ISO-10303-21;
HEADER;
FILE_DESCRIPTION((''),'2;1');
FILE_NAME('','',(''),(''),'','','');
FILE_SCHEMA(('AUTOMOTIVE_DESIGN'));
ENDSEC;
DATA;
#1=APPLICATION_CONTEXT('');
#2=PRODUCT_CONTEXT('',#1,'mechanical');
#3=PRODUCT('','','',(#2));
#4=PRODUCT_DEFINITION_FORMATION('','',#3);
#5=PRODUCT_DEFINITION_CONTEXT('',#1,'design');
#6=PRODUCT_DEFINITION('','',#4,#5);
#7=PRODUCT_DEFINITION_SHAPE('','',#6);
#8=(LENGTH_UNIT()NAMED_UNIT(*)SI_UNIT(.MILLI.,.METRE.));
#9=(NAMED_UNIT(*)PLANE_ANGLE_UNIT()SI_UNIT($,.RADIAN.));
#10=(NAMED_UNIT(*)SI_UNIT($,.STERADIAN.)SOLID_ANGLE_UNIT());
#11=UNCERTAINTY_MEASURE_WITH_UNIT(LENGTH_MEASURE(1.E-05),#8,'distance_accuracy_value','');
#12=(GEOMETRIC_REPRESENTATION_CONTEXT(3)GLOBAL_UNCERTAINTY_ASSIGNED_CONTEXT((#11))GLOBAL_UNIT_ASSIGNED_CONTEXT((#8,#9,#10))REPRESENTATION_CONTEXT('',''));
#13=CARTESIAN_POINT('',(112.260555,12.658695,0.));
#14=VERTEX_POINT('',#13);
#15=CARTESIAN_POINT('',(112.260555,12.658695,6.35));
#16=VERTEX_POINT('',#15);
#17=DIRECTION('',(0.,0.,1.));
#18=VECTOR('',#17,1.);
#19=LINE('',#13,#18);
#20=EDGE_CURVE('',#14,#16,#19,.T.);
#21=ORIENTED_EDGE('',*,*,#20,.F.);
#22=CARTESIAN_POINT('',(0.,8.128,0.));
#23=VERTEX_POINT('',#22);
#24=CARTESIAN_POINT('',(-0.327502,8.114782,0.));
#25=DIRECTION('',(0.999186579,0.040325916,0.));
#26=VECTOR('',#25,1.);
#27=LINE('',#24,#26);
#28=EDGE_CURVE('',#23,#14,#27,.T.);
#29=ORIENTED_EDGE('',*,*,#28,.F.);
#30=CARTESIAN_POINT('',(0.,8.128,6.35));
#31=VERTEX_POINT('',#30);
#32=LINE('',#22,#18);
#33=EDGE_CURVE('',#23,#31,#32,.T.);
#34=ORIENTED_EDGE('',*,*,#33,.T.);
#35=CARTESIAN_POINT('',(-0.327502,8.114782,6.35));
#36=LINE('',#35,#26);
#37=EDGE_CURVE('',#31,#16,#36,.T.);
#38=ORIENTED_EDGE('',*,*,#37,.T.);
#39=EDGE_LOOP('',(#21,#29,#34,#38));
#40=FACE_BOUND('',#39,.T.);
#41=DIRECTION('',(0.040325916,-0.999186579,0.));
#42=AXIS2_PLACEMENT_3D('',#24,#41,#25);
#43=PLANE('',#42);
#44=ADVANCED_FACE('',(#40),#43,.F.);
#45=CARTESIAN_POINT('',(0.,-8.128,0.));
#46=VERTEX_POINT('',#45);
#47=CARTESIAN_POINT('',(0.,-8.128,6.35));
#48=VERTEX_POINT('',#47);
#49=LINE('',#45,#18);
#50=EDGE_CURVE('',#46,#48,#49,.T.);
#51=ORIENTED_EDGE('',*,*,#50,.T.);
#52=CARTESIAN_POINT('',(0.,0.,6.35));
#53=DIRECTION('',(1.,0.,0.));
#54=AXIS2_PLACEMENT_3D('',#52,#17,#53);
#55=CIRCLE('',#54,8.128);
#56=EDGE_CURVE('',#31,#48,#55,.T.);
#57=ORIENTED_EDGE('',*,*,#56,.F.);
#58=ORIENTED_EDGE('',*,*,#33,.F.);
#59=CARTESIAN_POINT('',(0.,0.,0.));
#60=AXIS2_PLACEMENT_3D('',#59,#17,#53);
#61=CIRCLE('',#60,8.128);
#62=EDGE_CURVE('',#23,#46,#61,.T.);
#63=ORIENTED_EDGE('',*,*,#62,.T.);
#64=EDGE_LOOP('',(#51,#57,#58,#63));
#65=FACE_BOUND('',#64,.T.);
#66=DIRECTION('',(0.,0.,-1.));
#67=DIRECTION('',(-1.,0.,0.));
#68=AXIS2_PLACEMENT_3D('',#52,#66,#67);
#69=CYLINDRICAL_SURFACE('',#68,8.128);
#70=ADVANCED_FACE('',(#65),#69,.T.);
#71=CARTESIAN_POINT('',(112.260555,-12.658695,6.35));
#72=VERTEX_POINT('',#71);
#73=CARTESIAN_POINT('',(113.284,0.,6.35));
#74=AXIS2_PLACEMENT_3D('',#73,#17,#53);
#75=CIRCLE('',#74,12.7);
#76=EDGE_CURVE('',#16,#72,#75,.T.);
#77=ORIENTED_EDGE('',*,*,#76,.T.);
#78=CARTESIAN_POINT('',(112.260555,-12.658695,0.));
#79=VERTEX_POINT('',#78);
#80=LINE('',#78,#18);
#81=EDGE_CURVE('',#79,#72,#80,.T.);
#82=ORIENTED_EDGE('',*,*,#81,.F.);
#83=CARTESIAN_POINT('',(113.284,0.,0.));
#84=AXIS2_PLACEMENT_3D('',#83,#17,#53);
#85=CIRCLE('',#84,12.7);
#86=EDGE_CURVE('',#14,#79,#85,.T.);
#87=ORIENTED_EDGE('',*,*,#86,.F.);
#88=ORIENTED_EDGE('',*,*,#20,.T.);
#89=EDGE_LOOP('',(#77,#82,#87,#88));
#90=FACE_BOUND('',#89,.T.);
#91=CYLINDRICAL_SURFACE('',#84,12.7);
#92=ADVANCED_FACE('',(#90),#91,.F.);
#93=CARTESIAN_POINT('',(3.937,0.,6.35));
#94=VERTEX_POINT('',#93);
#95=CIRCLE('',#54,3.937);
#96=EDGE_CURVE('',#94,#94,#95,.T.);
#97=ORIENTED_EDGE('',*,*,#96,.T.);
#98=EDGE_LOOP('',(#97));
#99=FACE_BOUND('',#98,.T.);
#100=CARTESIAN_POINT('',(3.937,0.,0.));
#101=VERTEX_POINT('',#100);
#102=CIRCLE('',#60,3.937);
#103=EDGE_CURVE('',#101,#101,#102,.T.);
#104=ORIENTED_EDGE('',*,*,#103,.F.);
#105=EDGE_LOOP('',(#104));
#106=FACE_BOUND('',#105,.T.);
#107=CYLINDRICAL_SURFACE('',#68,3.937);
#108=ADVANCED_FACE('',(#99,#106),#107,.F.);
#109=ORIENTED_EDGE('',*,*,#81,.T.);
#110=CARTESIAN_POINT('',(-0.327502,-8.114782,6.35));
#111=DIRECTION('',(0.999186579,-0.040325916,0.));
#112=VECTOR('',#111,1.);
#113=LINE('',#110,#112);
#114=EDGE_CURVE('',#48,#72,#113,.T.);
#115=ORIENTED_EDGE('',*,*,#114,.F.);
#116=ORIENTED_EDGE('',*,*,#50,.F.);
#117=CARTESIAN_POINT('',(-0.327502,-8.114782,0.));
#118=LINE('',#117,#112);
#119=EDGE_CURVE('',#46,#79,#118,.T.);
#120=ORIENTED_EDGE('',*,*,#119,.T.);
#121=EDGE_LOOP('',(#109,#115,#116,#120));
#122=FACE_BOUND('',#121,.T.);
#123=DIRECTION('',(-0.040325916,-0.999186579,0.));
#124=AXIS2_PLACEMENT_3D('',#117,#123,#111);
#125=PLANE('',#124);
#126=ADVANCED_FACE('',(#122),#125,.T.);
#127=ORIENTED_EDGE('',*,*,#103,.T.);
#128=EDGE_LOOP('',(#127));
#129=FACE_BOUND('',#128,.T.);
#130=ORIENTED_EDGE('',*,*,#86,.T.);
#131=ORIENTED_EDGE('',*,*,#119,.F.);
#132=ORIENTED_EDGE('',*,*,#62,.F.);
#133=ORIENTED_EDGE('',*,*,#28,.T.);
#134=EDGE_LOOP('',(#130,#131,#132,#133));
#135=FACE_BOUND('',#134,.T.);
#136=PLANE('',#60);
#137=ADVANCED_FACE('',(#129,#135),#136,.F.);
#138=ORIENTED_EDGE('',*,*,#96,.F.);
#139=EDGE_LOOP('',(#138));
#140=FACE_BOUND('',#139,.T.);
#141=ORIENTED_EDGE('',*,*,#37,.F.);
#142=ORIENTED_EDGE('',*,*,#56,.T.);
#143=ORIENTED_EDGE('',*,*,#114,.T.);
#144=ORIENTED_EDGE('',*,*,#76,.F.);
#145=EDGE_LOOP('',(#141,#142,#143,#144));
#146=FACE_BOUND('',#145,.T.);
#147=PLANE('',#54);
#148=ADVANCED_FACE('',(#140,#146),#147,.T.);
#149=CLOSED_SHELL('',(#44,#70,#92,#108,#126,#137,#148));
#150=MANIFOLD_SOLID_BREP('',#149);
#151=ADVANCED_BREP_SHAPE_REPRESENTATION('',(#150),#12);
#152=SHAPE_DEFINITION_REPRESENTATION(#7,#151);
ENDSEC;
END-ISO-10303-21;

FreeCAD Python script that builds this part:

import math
import FreeCAD as App
import Part
import Sketcher
from FreeCAD import Vector
Q = App.Units.Quantity

doc = App.newDocument("Part")
params = doc.addObject("Spreadsheet::Sheet", "Params")
for row, (alias, value) in enumerate([
    ("sketch1_diameter", "0.64 in"),
    ("sketch1_diameter2", "0.31 in"),
    ("pad1_length", "0.25 in"),
    ("sketch2_radius", "0.5 in"),
    ("sketch2_radius2", "0.32 in"),
    ("pad2_length", "0.25 in"),
], start=1):
    params.set(f"A{row}", alias)
    params.set(f"B{row}", "=" + value)
    params.setAlias(f"B{row}", alias)

body = doc.addObject("PartDesign::Body", "Body")

# Sketch on XY plane
sketch1 = doc.addObject("Sketcher::SketchObject", "Sketch")
body.addObject(sketch1)
sketch1.AttachmentSupport = (doc.XY_Plane, [""])
sketch1.MapMode = "FlatFace"
sketch1.addGeometry(Part.Circle(Vector(0, 0, 0), Vector(0, 0, 1), 8.1), False)
sketch1.addGeometry(Part.Circle(Vector(0, 0, 0), Vector(0, 0, 1), 3.9), False)
sketch1.addConstraint(Sketcher.Constraint("Coincident", 0, 3, -1, 1))
sketch1.addConstraint(Sketcher.Constraint("Coincident", 1, 3, -1, 1))
sketch1.addConstraint(Sketcher.Constraint("Diameter", 0, Q("0.64 in")))
sketch1.addConstraint(Sketcher.Constraint("Diameter", 1, Q("0.31 in")))
sketch1.setExpression("Constraints[2]", "Params.sketch1_diameter")
sketch1.setExpression("Constraints[3]", "Params.sketch1_diameter2")
pad1 = doc.addObject("PartDesign::Pad", "Pad")
body.addObject(pad1)
pad1.Profile = sketch1
pad1.setExpression("Length", "Params.pad1_length")

# Sketch on XY plane
sketch2 = doc.addObject("Sketcher::SketchObject", "Sketch001")
body.addObject(sketch2)
sketch2.AttachmentSupport = (doc.XY_Plane, [""])
sketch2.MapMode = "FlatFace"
sketch2.AttachmentOffset = App.Placement(Vector(0, 0, 0.25 * 25.4), App.Rotation())
sketch2.addGeometry(Part.LineSegment(Vector(112, 13, 0), Vector(0, 8, 0)), False)
sketch2.addGeometry(Part.ArcOfCircle(Part.Circle(Vector(0, 0, 0), Vector(0, 0, 1), 8), math.radians(0), math.radians(90)), False)
sketch2.addGeometry(Part.ArcOfCircle(Part.Circle(Vector(0, 0, 0), Vector(0, 0, 1), 8), math.radians(-90), math.radians(0)), False)
sketch2.addGeometry(Part.LineSegment(Vector(0, -8, 0), Vector(112, -13, 0)), False)
sketch2.addGeometry(Part.ArcOfCircle(Part.Circle(Vector(113, 0, 0), Vector(0, 0, 1), 13), math.radians(95), math.radians(265)), False)
sketch2.addConstraint(Sketcher.Constraint("Coincident", 0, 2, 1, 2))
sketch2.addConstraint(Sketcher.Constraint("Tangent", 1, 1, 2, 2))
sketch2.addConstraint(Sketcher.Constraint("Coincident", 2, 1, 3, 1))
sketch2.addConstraint(Sketcher.Constraint("Coincident", 3, 2, 4, 2))
sketch2.addConstraint(Sketcher.Constraint("Coincident", 4, 1, 0, 1))
sketch2.addConstraint(Sketcher.Constraint("Coincident", 1, 3, -1, 1))
sketch2.addConstraint(Sketcher.Constraint("Equal", 1, 2))
sketch2.addConstraint(Sketcher.Constraint("Symmetric", 3, 2, 4, 1, -1))
sketch2.addConstraint(Sketcher.Constraint("PointOnObject", 0, 2, -2))
sketch2.addConstraint(Sketcher.Constraint("PointOnObject", 1, 1, -1))
sketch2.addConstraint(Sketcher.Constraint("PointOnObject", 2, 1, -2))
sketch2.addConstraint(Sketcher.Constraint("Radius", 4, Q("0.5 in")))
sketch2.addConstraint(Sketcher.Constraint("Radius", 1, Q("0.32 in")))
sketch2.addConstraint(Sketcher.Constraint("DistanceX", -1, 1, 4, 3, Q("4.46 in")))
sketch2.addConstraint(Sketcher.Constraint("DistanceY", 3, 2, 4, 1, 25.31739))
sketch2.setExpression("Constraints[11]", "Params.sketch2_radius")
sketch2.setExpression("Constraints[12]", "Params.sketch2_radius2")
pad2 = doc.addObject("PartDesign::Pad", "Pad001")
body.addObject(pad2)
pad2.Profile = sketch2
pad2.setExpression("Length", "Params.pad2_length")
pad2.Reversed = True

doc.recompute()
